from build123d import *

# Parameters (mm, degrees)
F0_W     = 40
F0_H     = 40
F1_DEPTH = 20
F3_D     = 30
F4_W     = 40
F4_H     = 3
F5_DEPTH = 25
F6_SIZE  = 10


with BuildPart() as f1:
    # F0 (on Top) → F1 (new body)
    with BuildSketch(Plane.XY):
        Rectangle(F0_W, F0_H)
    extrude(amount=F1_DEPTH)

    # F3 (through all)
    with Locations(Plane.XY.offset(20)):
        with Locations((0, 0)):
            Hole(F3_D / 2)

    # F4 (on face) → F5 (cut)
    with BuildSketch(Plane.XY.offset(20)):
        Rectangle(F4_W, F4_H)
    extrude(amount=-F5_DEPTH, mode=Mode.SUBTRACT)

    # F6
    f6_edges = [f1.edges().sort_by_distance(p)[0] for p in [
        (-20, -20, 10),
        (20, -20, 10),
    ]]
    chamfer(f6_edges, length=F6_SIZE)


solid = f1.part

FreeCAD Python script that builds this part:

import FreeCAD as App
import Part
import Sketcher
from FreeCAD import Vector
Q = App.Units.Quantity


def edges_at(feature, points):
    """Names of the edges that pass closest to the given points."""
    edges = feature.Shape.Edges
    near = lambda p: min(range(len(edges)), key=lambda i: edges[i].distToShape(Part.Vertex(*p))[0])
    return sorted({f"Edge{near(p) + 1}" for p in points})


def add_polygon(sketch, points):
    """Adds a closed chain of lines whose ends are joined by coincident constraints."""
    first, n = sketch.GeometryCount, len(points)
    for a, b in zip(points, points[1:] + points[:1]):
        sketch.addGeometry(Part.LineSegment(App.Vector(*a, 0), App.Vector(*b, 0)), False)
    for i in range(n):
        sketch.addConstraint(Sketcher.Constraint("Coincident", first + i, 2, first + (i + 1) % n, 1))

doc = App.newDocument("Part")
params = doc.addObject("Spreadsheet::Sheet", "Params")
for row, (alias, value) in enumerate([
    ("sketch1_width", "40 mm"),
    ("pad1_length", "20 mm"),
    ("sketch2_diameter", "30 mm"),
    ("hole_diameter", "30 mm"),
    ("sketch3_width", "40 mm"),
    ("sketch3_height", "3 mm"),
    ("pocket1_length", "25 mm"),
    ("chamfer_size", "10 mm"),
], start=1):
    params.set(f"A{row}", alias)
    params.set(f"B{row}", "=" + value)
    params.setAlias(f"B{row}", alias)

body = doc.addObject("PartDesign::Body", "Body")
body.AllowCompound = True

sketch1 = body.newObject("Sketcher::SketchObject", "Sketch")
sketch1.AttachmentSupport = (doc.getObject("XY_Plane"), [""])
sketch1.MapMode = "FlatFace"
add_polygon(sketch1, [(-20, 20), (-20, -20), (20, -20), (20, 20)])
sketch1.addConstraint([
    Sketcher.Constraint("Vertical", 0),
    Sketcher.Constraint("Horizontal", 1),
    Sketcher.Constraint("Vertical", 2),
    Sketcher.Constraint("Horizontal", 3),
    Sketcher.Constraint("Symmetric", 0, 2, 2, 2, -1, 1),
    Sketcher.Constraint("Equal", 3, 0),
    Sketcher.Constraint("DistanceX", 1, 1, 1, 2, Q("40 mm")),
])
sketch1.setExpression("Constraints[10]", "Params.sketch1_width")
pad1 = body.newObject("PartDesign::Pad", "Pad")
pad1.Profile = sketch1
pad1.setExpression("Length", "Params.pad1_length")

sketch2 = body.newObject("Sketcher::SketchObject", "Sketch001")
sketch2.AttachmentSupport = (doc.getObject("XY_Plane"), [""])
sketch2.MapMode = "FlatFace"
sketch2.AttachmentOffset = App.Placement(Vector(0, 0, 20), App.Rotation())
sketch2.addGeometry(Part.Circle(Vector(0, 0, 0), Vector(0, 0, 1), 15), False)
sketch2.addConstraint([
    Sketcher.Constraint("Coincident", 0, 3, -1, 1),
    Sketcher.Constraint("Diameter", 0, Q("30 mm")),
])
sketch2.setExpression("Constraints[1]", "Params.sketch2_diameter")
doc.recompute()
hole = body.newObject("PartDesign::Hole", "Hole")
hole.Profile = sketch2
hole.ThreadType = "None"
hole.setExpression("Diameter", "Params.hole_diameter")
hole.DepthType = "ThroughAll"

sketch3 = body.newObject("Sketcher::SketchObject", "Sketch002")
sketch3.AttachmentSupport = (doc.getObject("XY_Plane"), [""])
sketch3.MapMode = "FlatFace"
sketch3.AttachmentOffset = App.Placement(Vector(0, 0, 20), App.Rotation())
add_polygon(sketch3, [(-20, 1.5), (-20, -1.5), (20, -1.5), (20, 1.5)])
sketch3.addConstraint([
    Sketcher.Constraint("Vertical", 0),
    Sketcher.Constraint("Horizontal", 1),
    Sketcher.Constraint("Vertical", 2),
    Sketcher.Constraint("Horizontal", 3),
    Sketcher.Constraint("Symmetric", 0, 2, 2, 2, -1, 1),
    Sketcher.Constraint("DistanceX", 1, 1, 1, 2, Q("40 mm")),
    Sketcher.Constraint("DistanceY", 0, 2, 0, 1, Q("3 mm")),
])
sketch3.setExpression("Constraints[9]", "Params.sketch3_width")
sketch3.setExpression("Constraints[10]", "Params.sketch3_height")
pocket1 = body.newObject("PartDesign::Pocket", "Pocket")
pocket1.Profile = sketch3
pocket1.setExpression("Length", "Params.pocket1_length")
doc.recompute()

chamfer = body.newObject("PartDesign::Chamfer", "Chamfer")
chamfer.Base = (pocket1, edges_at(pocket1, [(-20, -20, 10), (20, -20, 10)]))
chamfer.setExpression("Size", "Params.chamfer_size")

doc.recompute()
